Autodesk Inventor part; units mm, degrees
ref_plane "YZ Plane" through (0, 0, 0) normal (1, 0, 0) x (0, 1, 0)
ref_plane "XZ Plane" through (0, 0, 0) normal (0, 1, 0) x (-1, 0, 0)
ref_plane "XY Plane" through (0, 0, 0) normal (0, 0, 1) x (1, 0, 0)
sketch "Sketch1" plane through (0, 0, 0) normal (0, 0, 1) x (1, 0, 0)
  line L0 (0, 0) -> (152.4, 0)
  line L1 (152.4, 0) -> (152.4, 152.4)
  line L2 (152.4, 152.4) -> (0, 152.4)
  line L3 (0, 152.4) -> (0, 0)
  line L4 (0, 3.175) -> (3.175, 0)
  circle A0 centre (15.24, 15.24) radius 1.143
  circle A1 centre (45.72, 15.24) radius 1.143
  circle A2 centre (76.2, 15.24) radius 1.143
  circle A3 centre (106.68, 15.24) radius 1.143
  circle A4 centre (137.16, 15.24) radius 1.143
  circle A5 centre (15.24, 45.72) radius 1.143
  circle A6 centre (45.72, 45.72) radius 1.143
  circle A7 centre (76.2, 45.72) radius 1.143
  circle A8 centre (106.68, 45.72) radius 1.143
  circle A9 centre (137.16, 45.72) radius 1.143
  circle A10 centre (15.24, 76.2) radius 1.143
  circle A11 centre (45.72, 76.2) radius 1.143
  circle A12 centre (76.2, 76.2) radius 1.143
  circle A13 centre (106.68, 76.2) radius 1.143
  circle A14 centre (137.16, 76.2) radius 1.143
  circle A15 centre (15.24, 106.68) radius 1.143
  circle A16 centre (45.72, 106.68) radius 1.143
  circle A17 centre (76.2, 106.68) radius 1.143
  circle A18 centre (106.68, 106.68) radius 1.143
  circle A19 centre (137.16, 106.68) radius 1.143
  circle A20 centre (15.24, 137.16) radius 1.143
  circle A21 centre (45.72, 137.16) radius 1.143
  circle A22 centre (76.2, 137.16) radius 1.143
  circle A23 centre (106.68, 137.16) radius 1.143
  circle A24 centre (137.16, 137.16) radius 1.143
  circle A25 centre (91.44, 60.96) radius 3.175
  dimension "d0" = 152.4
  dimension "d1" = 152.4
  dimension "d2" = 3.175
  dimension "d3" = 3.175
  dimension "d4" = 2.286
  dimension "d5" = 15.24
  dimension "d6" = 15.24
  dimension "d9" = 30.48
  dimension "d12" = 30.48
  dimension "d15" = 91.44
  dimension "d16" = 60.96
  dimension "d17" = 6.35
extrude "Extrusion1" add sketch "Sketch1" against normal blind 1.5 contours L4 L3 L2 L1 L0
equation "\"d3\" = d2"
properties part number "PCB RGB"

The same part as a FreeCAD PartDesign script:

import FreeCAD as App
import Part
import Sketcher

V = App.Vector
Q = App.Units.Quantity


def add_polygon(sketch, points):
    """Adds a closed chain of lines whose ends are joined by coincident constraints."""
    first, n = sketch.GeometryCount, len(points)
    for a, b in zip(points, points[1:] + points[:1]):
        sketch.addGeometry(Part.LineSegment(App.Vector(*a, 0), App.Vector(*b, 0)), False)
    for i in range(n):
        sketch.addConstraint(Sketcher.Constraint("Coincident", first + i, 2, first + (i + 1) % n, 1))

doc = App.newDocument("Part")
body = doc.addObject("PartDesign::Body", "Body")

sketch1 = body.newObject("Sketcher::SketchObject", "Sketch")
sketch1.AttachmentSupport = (doc.getObject("XY_Plane"), [""])
sketch1.MapMode = "FlatFace"
add_polygon(sketch1, [(0, 3.175), (3.175, 0), (152.4, 0), (152.4, 152.4), (0, 152.4)])
sketch1.addGeometry(Part.Circle(V(15.24, 15.24, 0), V(0, 0, 1), 1.143), False)
sketch1.addGeometry(Part.Circle(V(45.72, 15.24, 0), V(0, 0, 1), 1.143), False)
sketch1.addGeometry(Part.Circle(V(15.24, 45.72, 0), V(0, 0, 1), 1.143), False)
sketch1.addGeometry(Part.Circle(V(45.72, 45.72, 0), V(0, 0, 1), 1.143), False)
sketch1.addGeometry(Part.Circle(V(76.2, 15.24, 0), V(0, 0, 1), 1.143), False)
sketch1.addGeometry(Part.Circle(V(106.68, 15.24, 0), V(0, 0, 1), 1.143), False)
sketch1.addGeometry(Part.Circle(V(137.16, 15.24, 0), V(0, 0, 1), 1.143), False)
sketch1.addGeometry(Part.Circle(V(76.2, 45.72, 0), V(0, 0, 1), 1.143), False)
sketch1.addGeometry(Part.Circle(V(106.68, 45.72, 0), V(0, 0, 1), 1.143), False)
sketch1.addGeometry(Part.Circle(V(91.44, 60.96, 0), V(0, 0, 1), 3.175), False)
sketch1.addGeometry(Part.Circle(V(137.16, 45.72, 0), V(0, 0, 1), 1.143), False)
sketch1.addGeometry(Part.Circle(V(15.24, 76.2, 0), V(0, 0, 1), 1.143), False)
sketch1.addGeometry(Part.Circle(V(15.24, 106.68, 0), V(0, 0, 1), 1.143), False)
sketch1.addGeometry(Part.Circle(V(45.72, 76.2, 0), V(0, 0, 1), 1.143), False)
sketch1.addGeometry(Part.Circle(V(45.72, 106.68, 0), V(0, 0, 1), 1.143), False)
sketch1.addGeometry(Part.Circle(V(15.24, 137.16, 0), V(0, 0, 1), 1.143), False)
sketch1.addGeometry(Part.Circle(V(45.72, 137.16, 0), V(0, 0, 1), 1.143), False)
sketch1.addGeometry(Part.Circle(V(76.2, 76.2, 0), V(0, 0, 1), 1.143), False)
sketch1.addGeometry(Part.Circle(V(106.68, 76.2, 0), V(0, 0, 1), 1.143), False)
sketch1.addGeometry(Part.Circle(V(76.2, 106.68, 0), V(0, 0, 1), 1.143), False)
sketch1.addGeometry(Part.Circle(V(106.68, 106.68, 0), V(0, 0, 1), 1.143), False)
sketch1.addGeometry(Part.Circle(V(137.16, 76.2, 0), V(0, 0, 1), 1.143), False)
sketch1.addGeometry(Part.Circle(V(137.16, 106.68, 0), V(0, 0, 1), 1.143), False)
sketch1.addGeometry(Part.Circle(V(76.2, 137.16, 0), V(0, 0, 1), 1.143), False)
sketch1.addGeometry(Part.Circle(V(106.68, 137.16, 0), V(0, 0, 1), 1.143), False)
sketch1.addGeometry(Part.Circle(V(137.16, 137.16, 0), V(0, 0, 1), 1.143), False)
sketch1.addConstraint(Sketcher.Constraint("Horizontal", 1))
sketch1.addConstraint(Sketcher.Constraint("Vertical", 2))
sketch1.addConstraint(Sketcher.Constraint("Horizontal", 3))
sketch1.addConstraint(Sketcher.Constraint("Vertical", 4))
sketch1.addConstraint(Sketcher.Constraint("Equal", 5, 6))
sketch1.addConstraint(Sketcher.Constraint("Equal", 6, 7))
sketch1.addConstraint(Sketcher.Constraint("Equal", 7, 8))
sketch1.addConstraint(Sketcher.Constraint("Equal", 8, 9))
sketch1.addConstraint(Sketcher.Constraint("Equal", 9, 10))
sketch1.addConstraint(Sketcher.Constraint("Equal", 10, 11))
sketch1.addConstraint(Sketcher.Constraint("Equal", 11, 12))
sketch1.addConstraint(Sketcher.Constraint("Equal", 12, 13))
sketch1.addConstraint(Sketcher.Constraint("Equal", 13, 15))
sketch1.addConstraint(Sketcher.Constraint("Equal", 15, 16))
sketch1.addConstraint(Sketcher.Constraint("Equal", 16, 17))
sketch1.addConstraint(Sketcher.Constraint("Equal", 17, 18))
sketch1.addConstraint(Sketcher.Constraint("Equal", 18, 19))
sketch1.addConstraint(Sketcher.Constraint("Equal", 19, 20))
sketch1.addConstraint(Sketcher.Constraint("Equal", 20, 21))
sketch1.addConstraint(Sketcher.Constraint("Equal", 21, 22))
sketch1.addConstraint(Sketcher.Constraint("Equal", 22, 23))
sketch1.addConstraint(Sketcher.Constraint("Equal", 23, 24))
sketch1.addConstraint(Sketcher.Constraint("Equal", 24, 25))
sketch1.addConstraint(Sketcher.Constraint("Equal", 25, 26))
sketch1.addConstraint(Sketcher.Constraint("Equal", 26, 27))
sketch1.addConstraint(Sketcher.Constraint("Equal", 27, 28))
sketch1.addConstraint(Sketcher.Constraint("Equal", 28, 29))
sketch1.addConstraint(Sketcher.Constraint("Equal", 29, 30))
sketch1.addConstraint(Sketcher.Constraint("PointOnObject", 0, 2, -1))
sketch1.addConstraint(Sketcher.Constraint("PointOnObject", 3, 2, -2))
sketch1.addConstraint(Sketcher.Constraint("Horizontal", 5, 3, 6, 3))
sketch1.addConstraint(Sketcher.Constraint("Horizontal", 7, 3, 8, 3))
sketch1.addConstraint(Sketcher.Constraint("Horizontal", 6, 3, 9, 3))
sketch1.addConstraint(Sketcher.Constraint("Horizontal", 9, 3, 10, 3))
sketch1.addConstraint(Sketcher.Constraint("Horizontal", 10, 3, 11, 3))
sketch1.addConstraint(Sketcher.Constraint("Horizontal", 8, 3, 12, 3))
sketch1.addConstraint(Sketcher.Constraint("Horizontal", 12, 3, 13, 3))
sketch1.addConstraint(Sketcher.Constraint("Horizontal", 13, 3, 15, 3))
sketch1.addConstraint(Sketcher.Constraint("Horizontal", 16, 3, 18, 3))
sketch1.addConstraint(Sketcher.Constraint("Horizontal", 17, 3, 19, 3))
sketch1.addConstraint(Sketcher.Constraint("Horizontal", 20, 3, 21, 3))
sketch1.addConstraint(Sketcher.Constraint("Horizontal", 18, 3, 22, 3))
sketch1.addConstraint(Sketcher.Constraint("Horizontal", 22, 3, 23, 3))
sketch1.addConstraint(Sketcher.Constraint("Horizontal", 19, 3, 24, 3))
sketch1.addConstraint(Sketcher.Constraint("Horizontal", 24, 3, 25, 3))
sketch1.addConstraint(Sketcher.Constraint("Horizontal", 23, 3, 26, 3))
sketch1.addConstraint(Sketcher.Constraint("Horizontal", 25, 3, 27, 3))
sketch1.addConstraint(Sketcher.Constraint("Horizontal", 21, 3, 28, 3))
sketch1.addConstraint(Sketcher.Constraint("Horizontal", 28, 3, 29, 3))
sketch1.addConstraint(Sketcher.Constraint("Horizontal", 29, 3, 30, 3))
sketch1.addConstraint(Sketcher.Constraint("Vertical", 5, 3, 7, 3))
sketch1.addConstraint(Sketcher.Constraint("Vertical", 6, 3, 8, 3))
sketch1.addConstraint(Sketcher.Constraint("Vertical", 9, 3, 12, 3))
sketch1.addConstraint(Sketcher.Constraint("Vertical", 10, 3, 13, 3))
sketch1.addConstraint(Sketcher.Constraint("Vertical", 11, 3, 15, 3))
sketch1.addConstraint(Sketcher.Constraint("Vertical", 7, 3, 16, 3))
sketch1.addConstraint(Sketcher.Constraint("Vertical", 16, 3, 17, 3))
sketch1.addConstraint(Sketcher.Constraint("Vertical", 8, 3, 18, 3))
sketch1.addConstraint(Sketcher.Constraint("Vertical", 18, 3, 19, 3))
sketch1.addConstraint(Sketcher.Constraint("Vertical", 17, 3, 20, 3))
sketch1.addConstraint(Sketcher.Constraint("Vertical", 19, 3, 21, 3))
sketch1.addConstraint(Sketcher.Constraint("Vertical", 12, 3, 22, 3))
sketch1.addConstraint(Sketcher.Constraint("Vertical", 13, 3, 23, 3))
sketch1.addConstraint(Sketcher.Constraint("Vertical", 22, 3, 24, 3))
sketch1.addConstraint(Sketcher.Constraint("Vertical", 23, 3, 25, 3))
sketch1.addConstraint(Sketcher.Constraint("Vertical", 15, 3, 26, 3))
sketch1.addConstraint(Sketcher.Constraint("Vertical", 26, 3, 27, 3))
sketch1.addConstraint(Sketcher.Constraint("Vertical", 24, 3, 28, 3))
sketch1.addConstraint(Sketcher.Constraint("Vertical", 25, 3, 29, 3))
sketch1.addConstraint(Sketcher.Constraint("Vertical", 27, 3, 30, 3))
sketch1.addConstraint(Sketcher.Constraint("Equal", 3, 2))
sketch1.addConstraint(Sketcher.Constraint("Equal", 1, 4))
sketch1.addConstraint(Sketcher.Constraint("Diameter", 5, Q("0.09 in")))
sketch1.addConstraint(Sketcher.Constraint("Diameter", 14, Q("0.25 in")))
sketch1.addConstraint(Sketcher.Constraint("DistanceX", 3, 2, 3, 1, Q("6 in")))
sketch1.addConstraint(Sketcher.Constraint("DistanceX", -1, 1, 5, 3, Q("0.6 in")))
sketch1.addConstraint(Sketcher.Constraint("DistanceY", -1, 1, 5, 3, Q("0.6 in")))
sketch1.addConstraint(Sketcher.Constraint("DistanceX", -1, 1, 14, 3, Q("3.6 in")))
sketch1.addConstraint(Sketcher.Constraint("DistanceY", -1, 1, 14, 3, Q("2.4 in")))
sketch1.addConstraint(Sketcher.Constraint("DistanceX", 5, 3, 6, 3, Q("1.2 in")))
sketch1.addConstraint(Sketcher.Constraint("DistanceY", 5, 3, 7, 3, Q("1.2 in")))
sketch1.addConstraint(Sketcher.Constraint("DistanceX", 6, 3, 9, 3, Q("1.2 in")))
sketch1.addConstraint(Sketcher.Constraint("DistanceX", 9, 3, 10, 3, Q("1.2 in")))
sketch1.addConstraint(Sketcher.Constraint("DistanceX", 10, 3, 11, 3, Q("1.2 in")))
sketch1.addConstraint(Sketcher.Constraint("DistanceY", 7, 3, 16, 3, Q("1.2 in")))
sketch1.addConstraint(Sketcher.Constraint("DistanceY", 16, 3, 17, 3, Q("1.2 in")))
sketch1.addConstraint(Sketcher.Constraint("DistanceY", 17, 3, 20, 3, Q("1.2 in")))
sketch1.addConstraint(Sketcher.Constraint("DistanceX", -1, 1, 0, 2, Q("0.125 in")))
pad1 = body.newObject("PartDesign::Pad", "Pad")
pad1.Profile = sketch1
pad1.Length = 1.5
pad1.Reversed = True

doc.recompute()
